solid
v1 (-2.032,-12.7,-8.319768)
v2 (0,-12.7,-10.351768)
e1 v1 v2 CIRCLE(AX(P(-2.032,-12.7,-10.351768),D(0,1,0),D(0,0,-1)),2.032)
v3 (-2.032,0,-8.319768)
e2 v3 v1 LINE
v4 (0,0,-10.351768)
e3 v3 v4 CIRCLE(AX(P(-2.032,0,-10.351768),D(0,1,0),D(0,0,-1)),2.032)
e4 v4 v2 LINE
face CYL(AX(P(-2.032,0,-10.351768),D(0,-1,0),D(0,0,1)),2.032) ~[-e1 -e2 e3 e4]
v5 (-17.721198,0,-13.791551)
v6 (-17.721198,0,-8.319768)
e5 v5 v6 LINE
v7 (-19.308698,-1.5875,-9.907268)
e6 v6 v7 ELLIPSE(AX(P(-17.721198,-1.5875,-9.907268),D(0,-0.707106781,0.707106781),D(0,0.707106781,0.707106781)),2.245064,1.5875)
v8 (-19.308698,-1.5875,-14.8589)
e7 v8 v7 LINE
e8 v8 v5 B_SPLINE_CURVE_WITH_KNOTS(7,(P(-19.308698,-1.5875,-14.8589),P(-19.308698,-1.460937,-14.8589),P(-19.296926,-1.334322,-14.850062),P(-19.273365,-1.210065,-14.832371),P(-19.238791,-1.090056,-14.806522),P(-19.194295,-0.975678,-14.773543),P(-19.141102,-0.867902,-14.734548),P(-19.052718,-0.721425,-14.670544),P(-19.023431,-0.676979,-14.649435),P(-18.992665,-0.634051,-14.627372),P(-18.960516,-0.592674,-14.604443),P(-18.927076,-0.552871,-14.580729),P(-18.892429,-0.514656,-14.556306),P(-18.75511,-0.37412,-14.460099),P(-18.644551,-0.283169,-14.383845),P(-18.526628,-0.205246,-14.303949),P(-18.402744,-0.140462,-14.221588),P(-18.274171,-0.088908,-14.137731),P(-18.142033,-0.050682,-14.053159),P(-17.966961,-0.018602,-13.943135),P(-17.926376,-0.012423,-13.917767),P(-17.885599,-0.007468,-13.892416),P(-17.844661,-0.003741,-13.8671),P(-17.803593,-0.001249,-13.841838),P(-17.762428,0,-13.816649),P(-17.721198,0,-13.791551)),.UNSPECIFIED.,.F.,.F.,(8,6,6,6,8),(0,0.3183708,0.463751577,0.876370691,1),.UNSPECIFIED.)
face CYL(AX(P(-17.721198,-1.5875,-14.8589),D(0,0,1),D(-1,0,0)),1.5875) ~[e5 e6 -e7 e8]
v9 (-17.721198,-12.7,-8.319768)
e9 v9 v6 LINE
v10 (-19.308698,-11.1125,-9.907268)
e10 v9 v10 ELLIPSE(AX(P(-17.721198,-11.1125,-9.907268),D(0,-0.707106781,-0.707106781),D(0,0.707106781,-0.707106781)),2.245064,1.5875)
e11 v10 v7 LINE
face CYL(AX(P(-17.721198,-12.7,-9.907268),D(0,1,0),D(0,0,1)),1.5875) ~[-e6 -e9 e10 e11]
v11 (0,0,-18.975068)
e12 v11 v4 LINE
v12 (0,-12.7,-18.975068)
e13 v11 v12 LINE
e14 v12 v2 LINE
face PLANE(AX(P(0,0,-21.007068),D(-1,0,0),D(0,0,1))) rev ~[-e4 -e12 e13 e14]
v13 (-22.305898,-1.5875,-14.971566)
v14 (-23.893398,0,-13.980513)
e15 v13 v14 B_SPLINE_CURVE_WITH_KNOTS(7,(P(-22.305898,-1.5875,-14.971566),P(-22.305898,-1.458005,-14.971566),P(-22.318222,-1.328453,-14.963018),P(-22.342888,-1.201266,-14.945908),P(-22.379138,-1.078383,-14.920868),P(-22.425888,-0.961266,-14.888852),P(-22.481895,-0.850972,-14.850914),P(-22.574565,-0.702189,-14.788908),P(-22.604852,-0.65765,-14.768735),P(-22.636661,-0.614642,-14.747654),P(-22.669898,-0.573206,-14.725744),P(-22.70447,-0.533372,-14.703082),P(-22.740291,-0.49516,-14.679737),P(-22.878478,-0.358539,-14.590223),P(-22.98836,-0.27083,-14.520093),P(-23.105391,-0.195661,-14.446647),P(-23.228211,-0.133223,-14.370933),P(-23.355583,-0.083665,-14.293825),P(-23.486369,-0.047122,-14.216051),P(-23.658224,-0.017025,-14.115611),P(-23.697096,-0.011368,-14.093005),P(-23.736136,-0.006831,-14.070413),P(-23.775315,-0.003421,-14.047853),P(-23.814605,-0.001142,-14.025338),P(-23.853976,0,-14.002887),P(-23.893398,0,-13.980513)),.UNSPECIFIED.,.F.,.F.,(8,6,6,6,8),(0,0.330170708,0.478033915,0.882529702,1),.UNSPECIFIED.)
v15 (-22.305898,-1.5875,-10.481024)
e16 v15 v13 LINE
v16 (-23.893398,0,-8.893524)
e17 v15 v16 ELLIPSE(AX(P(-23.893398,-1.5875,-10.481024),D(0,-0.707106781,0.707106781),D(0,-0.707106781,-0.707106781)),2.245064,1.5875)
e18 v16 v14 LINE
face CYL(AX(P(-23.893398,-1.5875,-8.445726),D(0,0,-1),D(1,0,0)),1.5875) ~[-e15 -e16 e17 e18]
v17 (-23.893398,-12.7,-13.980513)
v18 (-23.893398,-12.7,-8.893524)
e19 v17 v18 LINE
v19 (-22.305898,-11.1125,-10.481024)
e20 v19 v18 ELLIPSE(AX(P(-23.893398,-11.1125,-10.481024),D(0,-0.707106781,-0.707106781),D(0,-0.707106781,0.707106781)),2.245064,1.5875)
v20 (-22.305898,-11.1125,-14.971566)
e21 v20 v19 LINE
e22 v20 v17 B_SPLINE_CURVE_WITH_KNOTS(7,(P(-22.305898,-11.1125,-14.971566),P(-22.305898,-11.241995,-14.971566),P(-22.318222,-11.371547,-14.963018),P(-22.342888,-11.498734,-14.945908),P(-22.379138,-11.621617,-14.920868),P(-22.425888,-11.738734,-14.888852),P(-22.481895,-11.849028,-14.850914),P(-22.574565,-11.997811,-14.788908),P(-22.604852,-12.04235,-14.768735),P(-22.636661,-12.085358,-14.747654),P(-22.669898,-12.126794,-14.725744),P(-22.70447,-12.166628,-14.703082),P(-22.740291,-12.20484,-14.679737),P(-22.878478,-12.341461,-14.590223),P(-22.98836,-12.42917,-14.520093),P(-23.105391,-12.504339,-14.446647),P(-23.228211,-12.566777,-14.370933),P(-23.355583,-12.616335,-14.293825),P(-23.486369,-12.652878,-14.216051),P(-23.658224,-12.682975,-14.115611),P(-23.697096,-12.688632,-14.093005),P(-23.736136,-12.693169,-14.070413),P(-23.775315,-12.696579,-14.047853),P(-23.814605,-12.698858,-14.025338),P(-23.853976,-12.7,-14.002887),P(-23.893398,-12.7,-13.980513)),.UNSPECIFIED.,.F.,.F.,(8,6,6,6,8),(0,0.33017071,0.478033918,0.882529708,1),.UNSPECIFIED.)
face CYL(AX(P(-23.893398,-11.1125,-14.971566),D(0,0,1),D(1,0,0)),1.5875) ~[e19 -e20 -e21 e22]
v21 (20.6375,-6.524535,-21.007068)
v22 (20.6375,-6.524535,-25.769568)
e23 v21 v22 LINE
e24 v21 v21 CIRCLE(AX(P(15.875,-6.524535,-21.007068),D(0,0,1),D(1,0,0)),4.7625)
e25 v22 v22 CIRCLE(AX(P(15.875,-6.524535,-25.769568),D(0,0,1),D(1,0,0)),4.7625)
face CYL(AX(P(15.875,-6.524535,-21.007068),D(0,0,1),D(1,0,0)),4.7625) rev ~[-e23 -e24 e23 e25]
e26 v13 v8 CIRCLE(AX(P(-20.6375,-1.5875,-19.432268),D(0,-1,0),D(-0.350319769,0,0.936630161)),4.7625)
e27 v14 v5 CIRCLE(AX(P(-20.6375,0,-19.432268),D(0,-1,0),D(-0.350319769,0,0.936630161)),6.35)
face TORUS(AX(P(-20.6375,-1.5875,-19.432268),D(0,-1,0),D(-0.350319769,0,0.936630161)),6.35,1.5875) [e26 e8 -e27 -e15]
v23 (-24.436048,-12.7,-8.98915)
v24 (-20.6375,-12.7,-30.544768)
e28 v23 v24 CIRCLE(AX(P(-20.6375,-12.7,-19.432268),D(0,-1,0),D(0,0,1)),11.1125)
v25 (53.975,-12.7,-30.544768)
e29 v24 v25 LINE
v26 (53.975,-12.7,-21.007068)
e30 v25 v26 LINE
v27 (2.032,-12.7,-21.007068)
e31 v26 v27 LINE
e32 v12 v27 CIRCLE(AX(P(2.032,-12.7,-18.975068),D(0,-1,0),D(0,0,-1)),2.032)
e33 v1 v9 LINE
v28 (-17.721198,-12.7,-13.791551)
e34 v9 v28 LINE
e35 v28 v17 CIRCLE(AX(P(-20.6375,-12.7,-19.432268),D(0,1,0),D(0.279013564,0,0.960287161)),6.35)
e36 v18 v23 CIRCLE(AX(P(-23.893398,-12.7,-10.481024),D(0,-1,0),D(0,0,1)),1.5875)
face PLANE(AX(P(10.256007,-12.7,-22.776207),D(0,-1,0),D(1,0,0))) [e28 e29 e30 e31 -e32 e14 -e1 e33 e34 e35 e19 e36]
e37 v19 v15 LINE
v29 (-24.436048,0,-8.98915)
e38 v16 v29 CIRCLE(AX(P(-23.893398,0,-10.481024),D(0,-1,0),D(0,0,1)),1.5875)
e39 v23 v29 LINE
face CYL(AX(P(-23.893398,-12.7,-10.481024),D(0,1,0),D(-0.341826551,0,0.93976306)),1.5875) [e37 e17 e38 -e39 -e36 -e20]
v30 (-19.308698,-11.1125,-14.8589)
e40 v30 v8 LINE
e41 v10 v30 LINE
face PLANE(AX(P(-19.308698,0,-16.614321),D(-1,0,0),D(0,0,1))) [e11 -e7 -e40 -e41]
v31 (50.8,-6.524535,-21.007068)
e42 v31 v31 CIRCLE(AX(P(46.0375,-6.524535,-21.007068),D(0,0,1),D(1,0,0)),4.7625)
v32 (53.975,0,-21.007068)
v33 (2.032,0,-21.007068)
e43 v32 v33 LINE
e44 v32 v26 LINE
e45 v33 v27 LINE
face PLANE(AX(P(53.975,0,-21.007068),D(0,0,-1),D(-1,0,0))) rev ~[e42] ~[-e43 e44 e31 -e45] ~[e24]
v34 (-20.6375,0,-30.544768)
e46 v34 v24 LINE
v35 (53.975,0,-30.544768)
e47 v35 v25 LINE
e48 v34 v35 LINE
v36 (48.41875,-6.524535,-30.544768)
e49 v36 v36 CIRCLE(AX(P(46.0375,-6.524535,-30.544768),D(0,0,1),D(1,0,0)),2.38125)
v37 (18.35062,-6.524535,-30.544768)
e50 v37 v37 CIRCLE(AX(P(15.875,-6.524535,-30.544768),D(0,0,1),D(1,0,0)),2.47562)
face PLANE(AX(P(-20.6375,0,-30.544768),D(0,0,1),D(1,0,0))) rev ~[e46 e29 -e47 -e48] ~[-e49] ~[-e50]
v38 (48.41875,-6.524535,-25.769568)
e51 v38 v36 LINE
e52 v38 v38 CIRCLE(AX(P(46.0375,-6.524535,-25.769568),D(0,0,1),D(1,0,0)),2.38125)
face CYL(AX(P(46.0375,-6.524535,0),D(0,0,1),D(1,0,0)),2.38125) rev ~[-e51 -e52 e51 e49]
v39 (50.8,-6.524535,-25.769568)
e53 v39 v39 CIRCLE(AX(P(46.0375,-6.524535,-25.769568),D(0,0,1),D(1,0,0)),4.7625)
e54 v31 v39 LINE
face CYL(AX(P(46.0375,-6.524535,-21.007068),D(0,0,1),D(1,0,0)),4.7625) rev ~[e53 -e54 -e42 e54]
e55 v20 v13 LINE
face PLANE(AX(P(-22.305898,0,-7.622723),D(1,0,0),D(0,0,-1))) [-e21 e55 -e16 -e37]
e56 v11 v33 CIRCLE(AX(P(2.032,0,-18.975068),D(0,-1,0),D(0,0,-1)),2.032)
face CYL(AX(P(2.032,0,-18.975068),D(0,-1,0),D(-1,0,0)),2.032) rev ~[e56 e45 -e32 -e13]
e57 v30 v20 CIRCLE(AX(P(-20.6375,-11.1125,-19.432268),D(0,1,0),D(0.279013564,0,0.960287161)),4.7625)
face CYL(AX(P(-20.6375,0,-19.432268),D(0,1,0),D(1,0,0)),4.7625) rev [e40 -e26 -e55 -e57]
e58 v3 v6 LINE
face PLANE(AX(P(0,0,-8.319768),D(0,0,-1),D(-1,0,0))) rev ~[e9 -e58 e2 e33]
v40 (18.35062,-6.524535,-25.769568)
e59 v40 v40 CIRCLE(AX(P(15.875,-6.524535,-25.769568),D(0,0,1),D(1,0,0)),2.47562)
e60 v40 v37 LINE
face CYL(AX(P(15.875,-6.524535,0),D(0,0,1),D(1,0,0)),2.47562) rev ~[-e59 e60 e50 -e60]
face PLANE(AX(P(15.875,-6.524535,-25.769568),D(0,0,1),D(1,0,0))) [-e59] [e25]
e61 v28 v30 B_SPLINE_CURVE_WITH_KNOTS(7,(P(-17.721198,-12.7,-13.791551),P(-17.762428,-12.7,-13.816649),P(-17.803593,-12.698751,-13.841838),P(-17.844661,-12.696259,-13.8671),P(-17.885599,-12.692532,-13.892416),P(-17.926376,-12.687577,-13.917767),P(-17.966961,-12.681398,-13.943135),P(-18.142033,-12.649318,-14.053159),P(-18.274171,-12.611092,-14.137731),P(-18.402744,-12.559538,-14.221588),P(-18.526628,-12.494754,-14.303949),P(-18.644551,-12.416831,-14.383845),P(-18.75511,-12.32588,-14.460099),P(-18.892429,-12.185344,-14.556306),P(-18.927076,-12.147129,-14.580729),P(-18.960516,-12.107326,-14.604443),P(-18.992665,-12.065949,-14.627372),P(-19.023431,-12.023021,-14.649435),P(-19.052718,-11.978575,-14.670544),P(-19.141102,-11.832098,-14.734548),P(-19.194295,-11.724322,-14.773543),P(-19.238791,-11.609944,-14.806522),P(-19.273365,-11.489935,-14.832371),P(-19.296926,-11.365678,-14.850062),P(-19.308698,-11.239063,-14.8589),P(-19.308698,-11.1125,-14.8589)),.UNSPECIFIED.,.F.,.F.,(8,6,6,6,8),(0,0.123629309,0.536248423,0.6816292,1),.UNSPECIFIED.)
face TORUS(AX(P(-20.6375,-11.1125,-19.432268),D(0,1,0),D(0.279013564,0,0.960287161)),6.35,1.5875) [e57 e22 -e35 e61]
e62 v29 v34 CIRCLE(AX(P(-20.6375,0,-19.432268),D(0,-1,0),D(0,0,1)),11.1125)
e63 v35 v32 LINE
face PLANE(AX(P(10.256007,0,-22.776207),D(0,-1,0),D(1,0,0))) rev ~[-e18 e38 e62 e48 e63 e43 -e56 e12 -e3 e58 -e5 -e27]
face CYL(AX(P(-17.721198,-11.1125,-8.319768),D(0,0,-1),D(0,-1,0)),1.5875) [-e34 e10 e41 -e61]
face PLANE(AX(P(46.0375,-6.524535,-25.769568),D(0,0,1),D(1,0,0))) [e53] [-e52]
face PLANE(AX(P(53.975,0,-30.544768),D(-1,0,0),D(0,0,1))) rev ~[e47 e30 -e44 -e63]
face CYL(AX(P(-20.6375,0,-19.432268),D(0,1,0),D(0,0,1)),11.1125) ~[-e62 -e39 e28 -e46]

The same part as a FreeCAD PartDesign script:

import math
import FreeCAD as App
import Part
import Sketcher
Q = App.Units.Quantity


def edges_at(feature, points):
    """Names of the edges that pass closest to the given points."""
    edges = feature.Shape.Edges
    near = lambda p: min(range(len(edges)), key=lambda i: edges[i].distToShape(Part.Vertex(*p))[0])
    return sorted({f"Edge{near(p) + 1}" for p in points})


def add_polygon(sketch, points):
    """Adds a closed chain of lines whose ends are joined by coincident constraints."""
    first, n = sketch.GeometryCount, len(points)
    for a, b in zip(points, points[1:] + points[:1]):
        sketch.addGeometry(Part.LineSegment(App.Vector(*a, 0), App.Vector(*b, 0)), False)
    for i in range(n):
        sketch.addConstraint(Sketcher.Constraint("Coincident", first + i, 2, first + (i + 1) % n, 1))

doc = App.newDocument("Part")
body = doc.addObject("PartDesign::Body", "Body")

sketch1 = body.newObject("Sketcher::SketchObject", "Sketch")
sketch1.AttachmentSupport = (doc.getObject("XZ_Plane"), [""])
sketch1.MapMode = "FlatFace"
sketch1.addGeometry([
    Part.LineSegment(App.Vector(0, -8.319768, 0), App.Vector(-20.6375, -8.319768, 0)),
    Part.ArcOfCircle(Part.Circle(App.Vector(-20.6375, -19.432268, 0), App.Vector(0, 0, 1), 11.1125), math.radians(90), math.radians(270)),
    Part.LineSegment(App.Vector(-20.6375, -30.544768, 0), App.Vector(53.975, -30.544768, 0)),
    Part.LineSegment(App.Vector(53.975, -30.544768, 0), App.Vector(53.975, -21.007068, 0)),
    Part.LineSegment(App.Vector(53.975, -21.007068, 0), App.Vector(0, -21.007068, 0)),
    Part.LineSegment(App.Vector(0, -21.007068, 0), App.Vector(0, -8.319768, 0)),
    Part.Circle(App.Vector(-20.6375, -19.432268, 0), App.Vector(0, 0, 1), 4.7625),
], False)
sketch1.addConstraint([
    Sketcher.Constraint("Tangent", 0, 2, 1, 1),
    Sketcher.Constraint("Tangent", 1, 2, 2, 1),
    Sketcher.Constraint("Coincident", 2, 2, 3, 1),
    Sketcher.Constraint("Coincident", 3, 2, 4, 1),
    Sketcher.Constraint("Coincident", 4, 2, 5, 1),
    Sketcher.Constraint("Coincident", 5, 2, 0, 1),
    Sketcher.Constraint("Horizontal", 0),
    Sketcher.Constraint("Horizontal", 2),
    Sketcher.Constraint("Vertical", 3),
    Sketcher.Constraint("Horizontal", 4),
    Sketcher.Constraint("Vertical", 5),
    Sketcher.Constraint("Coincident", 6, 3, 1, 3),
    Sketcher.Constraint("PointOnObject", 4, 2, -2),
    Sketcher.Constraint("Diameter", 6, Q("0.375 in")),
    Sketcher.Constraint("Radius", 1, Q("0.4375 in")),
    Sketcher.Constraint("DistanceX", 0, 2, 0, 1, Q("0.8125 in")),
    Sketcher.Constraint("DistanceX", 2, 1, 2, 2, Q("2.9375 in")),
    Sketcher.Constraint("DistanceY", 3, 1, 3, 2, Q("0.3755 in")),
    Sketcher.Constraint("DistanceY", 1, 3, -1, 1, Q("19.432268 mm")),
])
pad1 = body.newObject("PartDesign::Pad", "Pad")
pad1.Profile = sketch1
pad1.Length = Q("0.5 in")

sketch2 = body.newObject("Sketcher::SketchObject", "Sketch001")
sketch2.AttachmentSupport = (doc.getObject("XZ_Plane"), [""])
sketch2.MapMode = "FlatFace"
add_polygon(sketch2, [(-19.308698, -7.776426), (-22.305898, -7.622723), (-22.305898, -16.614321), (-19.308698, -16.614321)])
sketch2.addConstraint([
    Sketcher.Constraint("Vertical", 1),
    Sketcher.Constraint("Horizontal", 2),
    Sketcher.Constraint("Vertical", 3),
    Sketcher.Constraint("DistanceX", 2, 1, 2, 2, Q("0.118 in")),
    Sketcher.Constraint("DistanceY", 1, 2, 1, 1, Q("0.3539999 in")),
    Sketcher.Constraint("Distance", 0, Q("3.001139 mm")),
    Sketcher.Constraint("DistanceY", 1, 2, -1, 1, Q("16.614321 mm")),
    Sketcher.Constraint("DistanceX", 0, 2, -1, 1, Q("22.305898 mm")),
])
pocket1 = body.newObject("PartDesign::Pocket", "Pocket")
pocket1.Profile = sketch2
pocket1.Type = "ThroughAll"
pocket1.Reversed = True
doc.recompute()

fillet = body.newObject("PartDesign::Fillet", "Fillet")
fillet.Base = (pocket1, edges_at(pocket1, [
    (-19.309, -6.35, -8.32),
    (-22.306, -6.35, -8.446),
    (-22.306, -12.7, -11.709),
    (-19.309, -12.7, -11.589),
    (-20.459, -12.7, -24.191),
    (-19.309, 0, -11.589),
    (-22.306, 0, -11.709),
    (-20.459, 0, -24.191),
]))
fillet.Radius = Q("0.0625 in")

sketch3 = body.newObject("Sketcher::SketchObject", "Sketch002")
sketch3.AttachmentSupport = (doc.getObject("XY_Plane"), [""])
sketch3.MapMode = "FlatFace"
sketch3.addGeometry([
    Part.Circle(App.Vector(46.0375, -6.524535, 0), App.Vector(0, 0, 1), 2.38125),
    Part.Circle(App.Vector(15.875, -6.524535, 0), App.Vector(0, 0, 1), 2.47562),
], False)
sketch3.addConstraint([
    Sketcher.Constraint("Horizontal", 0, 3, 1, 3),
    Sketcher.Constraint("Diameter", 0, Q("0.1875 in")),
    Sketcher.Constraint("Diameter", 1, Q("4.951239 mm")),
    Sketcher.Constraint("DistanceX", -1, 1, 0, 3, Q("1.8125 in")),
    Sketcher.Constraint("DistanceX", -1, 1, 1, 3, Q("0.625 in")),
    Sketcher.Constraint("DistanceY", 0, 3, -1, 1, Q("6.524535 mm")),
])
pocket2 = body.newObject("PartDesign::Pocket", "Pocket001")
pocket2.Profile = sketch3
pocket2.Length = Q("4 in")
pocket2.Reversed = True

sketch4 = body.newObject("Sketcher::SketchObject", "Sketch003")
sketch4.AttachmentSupport = (doc.getObject("XY_Plane"), [""])
sketch4.MapMode = "FlatFace"
sketch4.AttachmentOffset = App.Placement(App.Vector(0, 0, -21.007068), App.Rotation())
sketch4.addGeometry([
    Part.Circle(App.Vector(15.875, -6.524535, 0), App.Vector(0, 0, 1), 4.7625),
    Part.Circle(App.Vector(46.0375, -6.524535, 0), App.Vector(0, 0, 1), 4.7625),
], False)
sketch4.addConstraint([
    Sketcher.Constraint("Equal", 0, 1),
    Sketcher.Constraint("Horizontal", 0, 3, 1, 3),
    Sketcher.Constraint("Diameter", 0, Q("0.375 in")),
    Sketcher.Constraint("DistanceX", -1, 1, 0, 3, Q("0.625 in")),
    Sketcher.Constraint("DistanceX", -1, 1, 1, 3, Q("1.8125 in")),
    Sketcher.Constraint("DistanceY", 0, 3, -1, 1, Q("6.524535 mm")),
])
pocket3 = body.newObject("PartDesign::Pocket", "Pocket002")
pocket3.Profile = sketch4
pocket3.Length = Q("0.1875 in")

sketch5 = body.newObject("Sketcher::SketchObject", "Sketch004")
sketch5.AttachmentSupport = (doc.getObject("XY_Plane"), [""])
sketch5.MapMode = "FlatFace"
sketch5.addGeometry([
    Part.Circle(App.Vector(15.875, -6.524535, 0), App.Vector(0, 0, 1), 2.47562),
    Part.Circle(App.Vector(46.0375, -6.524535, 0), App.Vector(0, 0, 1), 2.38125),
], False)
sketch5.addConstraint([
    Sketcher.Constraint("Horizontal", 0, 3, 1, 3),
    Sketcher.Constraint("Diameter", 1, Q("0.1875 in")),
    Sketcher.Constraint("Diameter", 0, Q("4.951239 mm")),
    Sketcher.Constraint("DistanceX", -1, 1, 0, 3, Q("0.625 in")),
    Sketcher.Constraint("DistanceX", -1, 1, 1, 3, Q("1.8125 in")),
    Sketcher.Constraint("DistanceY", 0, 3, -1, 1, Q("6.524535 mm")),
])
pocket4 = body.newObject("PartDesign::Pocket", "Pocket003")
pocket4.Profile = sketch5
pocket4.Length = Q("1.43 in")
doc.recompute()

fillet2 = body.newObject("PartDesign::Fillet", "Fillet001")
fillet2.Base = (pocket4, edges_at(pocket4, [(0, -6.35, -8.32), (0, -6.35, -21.007)]))
fillet2.Radius = Q("0.08 in")

doc.recompute()
